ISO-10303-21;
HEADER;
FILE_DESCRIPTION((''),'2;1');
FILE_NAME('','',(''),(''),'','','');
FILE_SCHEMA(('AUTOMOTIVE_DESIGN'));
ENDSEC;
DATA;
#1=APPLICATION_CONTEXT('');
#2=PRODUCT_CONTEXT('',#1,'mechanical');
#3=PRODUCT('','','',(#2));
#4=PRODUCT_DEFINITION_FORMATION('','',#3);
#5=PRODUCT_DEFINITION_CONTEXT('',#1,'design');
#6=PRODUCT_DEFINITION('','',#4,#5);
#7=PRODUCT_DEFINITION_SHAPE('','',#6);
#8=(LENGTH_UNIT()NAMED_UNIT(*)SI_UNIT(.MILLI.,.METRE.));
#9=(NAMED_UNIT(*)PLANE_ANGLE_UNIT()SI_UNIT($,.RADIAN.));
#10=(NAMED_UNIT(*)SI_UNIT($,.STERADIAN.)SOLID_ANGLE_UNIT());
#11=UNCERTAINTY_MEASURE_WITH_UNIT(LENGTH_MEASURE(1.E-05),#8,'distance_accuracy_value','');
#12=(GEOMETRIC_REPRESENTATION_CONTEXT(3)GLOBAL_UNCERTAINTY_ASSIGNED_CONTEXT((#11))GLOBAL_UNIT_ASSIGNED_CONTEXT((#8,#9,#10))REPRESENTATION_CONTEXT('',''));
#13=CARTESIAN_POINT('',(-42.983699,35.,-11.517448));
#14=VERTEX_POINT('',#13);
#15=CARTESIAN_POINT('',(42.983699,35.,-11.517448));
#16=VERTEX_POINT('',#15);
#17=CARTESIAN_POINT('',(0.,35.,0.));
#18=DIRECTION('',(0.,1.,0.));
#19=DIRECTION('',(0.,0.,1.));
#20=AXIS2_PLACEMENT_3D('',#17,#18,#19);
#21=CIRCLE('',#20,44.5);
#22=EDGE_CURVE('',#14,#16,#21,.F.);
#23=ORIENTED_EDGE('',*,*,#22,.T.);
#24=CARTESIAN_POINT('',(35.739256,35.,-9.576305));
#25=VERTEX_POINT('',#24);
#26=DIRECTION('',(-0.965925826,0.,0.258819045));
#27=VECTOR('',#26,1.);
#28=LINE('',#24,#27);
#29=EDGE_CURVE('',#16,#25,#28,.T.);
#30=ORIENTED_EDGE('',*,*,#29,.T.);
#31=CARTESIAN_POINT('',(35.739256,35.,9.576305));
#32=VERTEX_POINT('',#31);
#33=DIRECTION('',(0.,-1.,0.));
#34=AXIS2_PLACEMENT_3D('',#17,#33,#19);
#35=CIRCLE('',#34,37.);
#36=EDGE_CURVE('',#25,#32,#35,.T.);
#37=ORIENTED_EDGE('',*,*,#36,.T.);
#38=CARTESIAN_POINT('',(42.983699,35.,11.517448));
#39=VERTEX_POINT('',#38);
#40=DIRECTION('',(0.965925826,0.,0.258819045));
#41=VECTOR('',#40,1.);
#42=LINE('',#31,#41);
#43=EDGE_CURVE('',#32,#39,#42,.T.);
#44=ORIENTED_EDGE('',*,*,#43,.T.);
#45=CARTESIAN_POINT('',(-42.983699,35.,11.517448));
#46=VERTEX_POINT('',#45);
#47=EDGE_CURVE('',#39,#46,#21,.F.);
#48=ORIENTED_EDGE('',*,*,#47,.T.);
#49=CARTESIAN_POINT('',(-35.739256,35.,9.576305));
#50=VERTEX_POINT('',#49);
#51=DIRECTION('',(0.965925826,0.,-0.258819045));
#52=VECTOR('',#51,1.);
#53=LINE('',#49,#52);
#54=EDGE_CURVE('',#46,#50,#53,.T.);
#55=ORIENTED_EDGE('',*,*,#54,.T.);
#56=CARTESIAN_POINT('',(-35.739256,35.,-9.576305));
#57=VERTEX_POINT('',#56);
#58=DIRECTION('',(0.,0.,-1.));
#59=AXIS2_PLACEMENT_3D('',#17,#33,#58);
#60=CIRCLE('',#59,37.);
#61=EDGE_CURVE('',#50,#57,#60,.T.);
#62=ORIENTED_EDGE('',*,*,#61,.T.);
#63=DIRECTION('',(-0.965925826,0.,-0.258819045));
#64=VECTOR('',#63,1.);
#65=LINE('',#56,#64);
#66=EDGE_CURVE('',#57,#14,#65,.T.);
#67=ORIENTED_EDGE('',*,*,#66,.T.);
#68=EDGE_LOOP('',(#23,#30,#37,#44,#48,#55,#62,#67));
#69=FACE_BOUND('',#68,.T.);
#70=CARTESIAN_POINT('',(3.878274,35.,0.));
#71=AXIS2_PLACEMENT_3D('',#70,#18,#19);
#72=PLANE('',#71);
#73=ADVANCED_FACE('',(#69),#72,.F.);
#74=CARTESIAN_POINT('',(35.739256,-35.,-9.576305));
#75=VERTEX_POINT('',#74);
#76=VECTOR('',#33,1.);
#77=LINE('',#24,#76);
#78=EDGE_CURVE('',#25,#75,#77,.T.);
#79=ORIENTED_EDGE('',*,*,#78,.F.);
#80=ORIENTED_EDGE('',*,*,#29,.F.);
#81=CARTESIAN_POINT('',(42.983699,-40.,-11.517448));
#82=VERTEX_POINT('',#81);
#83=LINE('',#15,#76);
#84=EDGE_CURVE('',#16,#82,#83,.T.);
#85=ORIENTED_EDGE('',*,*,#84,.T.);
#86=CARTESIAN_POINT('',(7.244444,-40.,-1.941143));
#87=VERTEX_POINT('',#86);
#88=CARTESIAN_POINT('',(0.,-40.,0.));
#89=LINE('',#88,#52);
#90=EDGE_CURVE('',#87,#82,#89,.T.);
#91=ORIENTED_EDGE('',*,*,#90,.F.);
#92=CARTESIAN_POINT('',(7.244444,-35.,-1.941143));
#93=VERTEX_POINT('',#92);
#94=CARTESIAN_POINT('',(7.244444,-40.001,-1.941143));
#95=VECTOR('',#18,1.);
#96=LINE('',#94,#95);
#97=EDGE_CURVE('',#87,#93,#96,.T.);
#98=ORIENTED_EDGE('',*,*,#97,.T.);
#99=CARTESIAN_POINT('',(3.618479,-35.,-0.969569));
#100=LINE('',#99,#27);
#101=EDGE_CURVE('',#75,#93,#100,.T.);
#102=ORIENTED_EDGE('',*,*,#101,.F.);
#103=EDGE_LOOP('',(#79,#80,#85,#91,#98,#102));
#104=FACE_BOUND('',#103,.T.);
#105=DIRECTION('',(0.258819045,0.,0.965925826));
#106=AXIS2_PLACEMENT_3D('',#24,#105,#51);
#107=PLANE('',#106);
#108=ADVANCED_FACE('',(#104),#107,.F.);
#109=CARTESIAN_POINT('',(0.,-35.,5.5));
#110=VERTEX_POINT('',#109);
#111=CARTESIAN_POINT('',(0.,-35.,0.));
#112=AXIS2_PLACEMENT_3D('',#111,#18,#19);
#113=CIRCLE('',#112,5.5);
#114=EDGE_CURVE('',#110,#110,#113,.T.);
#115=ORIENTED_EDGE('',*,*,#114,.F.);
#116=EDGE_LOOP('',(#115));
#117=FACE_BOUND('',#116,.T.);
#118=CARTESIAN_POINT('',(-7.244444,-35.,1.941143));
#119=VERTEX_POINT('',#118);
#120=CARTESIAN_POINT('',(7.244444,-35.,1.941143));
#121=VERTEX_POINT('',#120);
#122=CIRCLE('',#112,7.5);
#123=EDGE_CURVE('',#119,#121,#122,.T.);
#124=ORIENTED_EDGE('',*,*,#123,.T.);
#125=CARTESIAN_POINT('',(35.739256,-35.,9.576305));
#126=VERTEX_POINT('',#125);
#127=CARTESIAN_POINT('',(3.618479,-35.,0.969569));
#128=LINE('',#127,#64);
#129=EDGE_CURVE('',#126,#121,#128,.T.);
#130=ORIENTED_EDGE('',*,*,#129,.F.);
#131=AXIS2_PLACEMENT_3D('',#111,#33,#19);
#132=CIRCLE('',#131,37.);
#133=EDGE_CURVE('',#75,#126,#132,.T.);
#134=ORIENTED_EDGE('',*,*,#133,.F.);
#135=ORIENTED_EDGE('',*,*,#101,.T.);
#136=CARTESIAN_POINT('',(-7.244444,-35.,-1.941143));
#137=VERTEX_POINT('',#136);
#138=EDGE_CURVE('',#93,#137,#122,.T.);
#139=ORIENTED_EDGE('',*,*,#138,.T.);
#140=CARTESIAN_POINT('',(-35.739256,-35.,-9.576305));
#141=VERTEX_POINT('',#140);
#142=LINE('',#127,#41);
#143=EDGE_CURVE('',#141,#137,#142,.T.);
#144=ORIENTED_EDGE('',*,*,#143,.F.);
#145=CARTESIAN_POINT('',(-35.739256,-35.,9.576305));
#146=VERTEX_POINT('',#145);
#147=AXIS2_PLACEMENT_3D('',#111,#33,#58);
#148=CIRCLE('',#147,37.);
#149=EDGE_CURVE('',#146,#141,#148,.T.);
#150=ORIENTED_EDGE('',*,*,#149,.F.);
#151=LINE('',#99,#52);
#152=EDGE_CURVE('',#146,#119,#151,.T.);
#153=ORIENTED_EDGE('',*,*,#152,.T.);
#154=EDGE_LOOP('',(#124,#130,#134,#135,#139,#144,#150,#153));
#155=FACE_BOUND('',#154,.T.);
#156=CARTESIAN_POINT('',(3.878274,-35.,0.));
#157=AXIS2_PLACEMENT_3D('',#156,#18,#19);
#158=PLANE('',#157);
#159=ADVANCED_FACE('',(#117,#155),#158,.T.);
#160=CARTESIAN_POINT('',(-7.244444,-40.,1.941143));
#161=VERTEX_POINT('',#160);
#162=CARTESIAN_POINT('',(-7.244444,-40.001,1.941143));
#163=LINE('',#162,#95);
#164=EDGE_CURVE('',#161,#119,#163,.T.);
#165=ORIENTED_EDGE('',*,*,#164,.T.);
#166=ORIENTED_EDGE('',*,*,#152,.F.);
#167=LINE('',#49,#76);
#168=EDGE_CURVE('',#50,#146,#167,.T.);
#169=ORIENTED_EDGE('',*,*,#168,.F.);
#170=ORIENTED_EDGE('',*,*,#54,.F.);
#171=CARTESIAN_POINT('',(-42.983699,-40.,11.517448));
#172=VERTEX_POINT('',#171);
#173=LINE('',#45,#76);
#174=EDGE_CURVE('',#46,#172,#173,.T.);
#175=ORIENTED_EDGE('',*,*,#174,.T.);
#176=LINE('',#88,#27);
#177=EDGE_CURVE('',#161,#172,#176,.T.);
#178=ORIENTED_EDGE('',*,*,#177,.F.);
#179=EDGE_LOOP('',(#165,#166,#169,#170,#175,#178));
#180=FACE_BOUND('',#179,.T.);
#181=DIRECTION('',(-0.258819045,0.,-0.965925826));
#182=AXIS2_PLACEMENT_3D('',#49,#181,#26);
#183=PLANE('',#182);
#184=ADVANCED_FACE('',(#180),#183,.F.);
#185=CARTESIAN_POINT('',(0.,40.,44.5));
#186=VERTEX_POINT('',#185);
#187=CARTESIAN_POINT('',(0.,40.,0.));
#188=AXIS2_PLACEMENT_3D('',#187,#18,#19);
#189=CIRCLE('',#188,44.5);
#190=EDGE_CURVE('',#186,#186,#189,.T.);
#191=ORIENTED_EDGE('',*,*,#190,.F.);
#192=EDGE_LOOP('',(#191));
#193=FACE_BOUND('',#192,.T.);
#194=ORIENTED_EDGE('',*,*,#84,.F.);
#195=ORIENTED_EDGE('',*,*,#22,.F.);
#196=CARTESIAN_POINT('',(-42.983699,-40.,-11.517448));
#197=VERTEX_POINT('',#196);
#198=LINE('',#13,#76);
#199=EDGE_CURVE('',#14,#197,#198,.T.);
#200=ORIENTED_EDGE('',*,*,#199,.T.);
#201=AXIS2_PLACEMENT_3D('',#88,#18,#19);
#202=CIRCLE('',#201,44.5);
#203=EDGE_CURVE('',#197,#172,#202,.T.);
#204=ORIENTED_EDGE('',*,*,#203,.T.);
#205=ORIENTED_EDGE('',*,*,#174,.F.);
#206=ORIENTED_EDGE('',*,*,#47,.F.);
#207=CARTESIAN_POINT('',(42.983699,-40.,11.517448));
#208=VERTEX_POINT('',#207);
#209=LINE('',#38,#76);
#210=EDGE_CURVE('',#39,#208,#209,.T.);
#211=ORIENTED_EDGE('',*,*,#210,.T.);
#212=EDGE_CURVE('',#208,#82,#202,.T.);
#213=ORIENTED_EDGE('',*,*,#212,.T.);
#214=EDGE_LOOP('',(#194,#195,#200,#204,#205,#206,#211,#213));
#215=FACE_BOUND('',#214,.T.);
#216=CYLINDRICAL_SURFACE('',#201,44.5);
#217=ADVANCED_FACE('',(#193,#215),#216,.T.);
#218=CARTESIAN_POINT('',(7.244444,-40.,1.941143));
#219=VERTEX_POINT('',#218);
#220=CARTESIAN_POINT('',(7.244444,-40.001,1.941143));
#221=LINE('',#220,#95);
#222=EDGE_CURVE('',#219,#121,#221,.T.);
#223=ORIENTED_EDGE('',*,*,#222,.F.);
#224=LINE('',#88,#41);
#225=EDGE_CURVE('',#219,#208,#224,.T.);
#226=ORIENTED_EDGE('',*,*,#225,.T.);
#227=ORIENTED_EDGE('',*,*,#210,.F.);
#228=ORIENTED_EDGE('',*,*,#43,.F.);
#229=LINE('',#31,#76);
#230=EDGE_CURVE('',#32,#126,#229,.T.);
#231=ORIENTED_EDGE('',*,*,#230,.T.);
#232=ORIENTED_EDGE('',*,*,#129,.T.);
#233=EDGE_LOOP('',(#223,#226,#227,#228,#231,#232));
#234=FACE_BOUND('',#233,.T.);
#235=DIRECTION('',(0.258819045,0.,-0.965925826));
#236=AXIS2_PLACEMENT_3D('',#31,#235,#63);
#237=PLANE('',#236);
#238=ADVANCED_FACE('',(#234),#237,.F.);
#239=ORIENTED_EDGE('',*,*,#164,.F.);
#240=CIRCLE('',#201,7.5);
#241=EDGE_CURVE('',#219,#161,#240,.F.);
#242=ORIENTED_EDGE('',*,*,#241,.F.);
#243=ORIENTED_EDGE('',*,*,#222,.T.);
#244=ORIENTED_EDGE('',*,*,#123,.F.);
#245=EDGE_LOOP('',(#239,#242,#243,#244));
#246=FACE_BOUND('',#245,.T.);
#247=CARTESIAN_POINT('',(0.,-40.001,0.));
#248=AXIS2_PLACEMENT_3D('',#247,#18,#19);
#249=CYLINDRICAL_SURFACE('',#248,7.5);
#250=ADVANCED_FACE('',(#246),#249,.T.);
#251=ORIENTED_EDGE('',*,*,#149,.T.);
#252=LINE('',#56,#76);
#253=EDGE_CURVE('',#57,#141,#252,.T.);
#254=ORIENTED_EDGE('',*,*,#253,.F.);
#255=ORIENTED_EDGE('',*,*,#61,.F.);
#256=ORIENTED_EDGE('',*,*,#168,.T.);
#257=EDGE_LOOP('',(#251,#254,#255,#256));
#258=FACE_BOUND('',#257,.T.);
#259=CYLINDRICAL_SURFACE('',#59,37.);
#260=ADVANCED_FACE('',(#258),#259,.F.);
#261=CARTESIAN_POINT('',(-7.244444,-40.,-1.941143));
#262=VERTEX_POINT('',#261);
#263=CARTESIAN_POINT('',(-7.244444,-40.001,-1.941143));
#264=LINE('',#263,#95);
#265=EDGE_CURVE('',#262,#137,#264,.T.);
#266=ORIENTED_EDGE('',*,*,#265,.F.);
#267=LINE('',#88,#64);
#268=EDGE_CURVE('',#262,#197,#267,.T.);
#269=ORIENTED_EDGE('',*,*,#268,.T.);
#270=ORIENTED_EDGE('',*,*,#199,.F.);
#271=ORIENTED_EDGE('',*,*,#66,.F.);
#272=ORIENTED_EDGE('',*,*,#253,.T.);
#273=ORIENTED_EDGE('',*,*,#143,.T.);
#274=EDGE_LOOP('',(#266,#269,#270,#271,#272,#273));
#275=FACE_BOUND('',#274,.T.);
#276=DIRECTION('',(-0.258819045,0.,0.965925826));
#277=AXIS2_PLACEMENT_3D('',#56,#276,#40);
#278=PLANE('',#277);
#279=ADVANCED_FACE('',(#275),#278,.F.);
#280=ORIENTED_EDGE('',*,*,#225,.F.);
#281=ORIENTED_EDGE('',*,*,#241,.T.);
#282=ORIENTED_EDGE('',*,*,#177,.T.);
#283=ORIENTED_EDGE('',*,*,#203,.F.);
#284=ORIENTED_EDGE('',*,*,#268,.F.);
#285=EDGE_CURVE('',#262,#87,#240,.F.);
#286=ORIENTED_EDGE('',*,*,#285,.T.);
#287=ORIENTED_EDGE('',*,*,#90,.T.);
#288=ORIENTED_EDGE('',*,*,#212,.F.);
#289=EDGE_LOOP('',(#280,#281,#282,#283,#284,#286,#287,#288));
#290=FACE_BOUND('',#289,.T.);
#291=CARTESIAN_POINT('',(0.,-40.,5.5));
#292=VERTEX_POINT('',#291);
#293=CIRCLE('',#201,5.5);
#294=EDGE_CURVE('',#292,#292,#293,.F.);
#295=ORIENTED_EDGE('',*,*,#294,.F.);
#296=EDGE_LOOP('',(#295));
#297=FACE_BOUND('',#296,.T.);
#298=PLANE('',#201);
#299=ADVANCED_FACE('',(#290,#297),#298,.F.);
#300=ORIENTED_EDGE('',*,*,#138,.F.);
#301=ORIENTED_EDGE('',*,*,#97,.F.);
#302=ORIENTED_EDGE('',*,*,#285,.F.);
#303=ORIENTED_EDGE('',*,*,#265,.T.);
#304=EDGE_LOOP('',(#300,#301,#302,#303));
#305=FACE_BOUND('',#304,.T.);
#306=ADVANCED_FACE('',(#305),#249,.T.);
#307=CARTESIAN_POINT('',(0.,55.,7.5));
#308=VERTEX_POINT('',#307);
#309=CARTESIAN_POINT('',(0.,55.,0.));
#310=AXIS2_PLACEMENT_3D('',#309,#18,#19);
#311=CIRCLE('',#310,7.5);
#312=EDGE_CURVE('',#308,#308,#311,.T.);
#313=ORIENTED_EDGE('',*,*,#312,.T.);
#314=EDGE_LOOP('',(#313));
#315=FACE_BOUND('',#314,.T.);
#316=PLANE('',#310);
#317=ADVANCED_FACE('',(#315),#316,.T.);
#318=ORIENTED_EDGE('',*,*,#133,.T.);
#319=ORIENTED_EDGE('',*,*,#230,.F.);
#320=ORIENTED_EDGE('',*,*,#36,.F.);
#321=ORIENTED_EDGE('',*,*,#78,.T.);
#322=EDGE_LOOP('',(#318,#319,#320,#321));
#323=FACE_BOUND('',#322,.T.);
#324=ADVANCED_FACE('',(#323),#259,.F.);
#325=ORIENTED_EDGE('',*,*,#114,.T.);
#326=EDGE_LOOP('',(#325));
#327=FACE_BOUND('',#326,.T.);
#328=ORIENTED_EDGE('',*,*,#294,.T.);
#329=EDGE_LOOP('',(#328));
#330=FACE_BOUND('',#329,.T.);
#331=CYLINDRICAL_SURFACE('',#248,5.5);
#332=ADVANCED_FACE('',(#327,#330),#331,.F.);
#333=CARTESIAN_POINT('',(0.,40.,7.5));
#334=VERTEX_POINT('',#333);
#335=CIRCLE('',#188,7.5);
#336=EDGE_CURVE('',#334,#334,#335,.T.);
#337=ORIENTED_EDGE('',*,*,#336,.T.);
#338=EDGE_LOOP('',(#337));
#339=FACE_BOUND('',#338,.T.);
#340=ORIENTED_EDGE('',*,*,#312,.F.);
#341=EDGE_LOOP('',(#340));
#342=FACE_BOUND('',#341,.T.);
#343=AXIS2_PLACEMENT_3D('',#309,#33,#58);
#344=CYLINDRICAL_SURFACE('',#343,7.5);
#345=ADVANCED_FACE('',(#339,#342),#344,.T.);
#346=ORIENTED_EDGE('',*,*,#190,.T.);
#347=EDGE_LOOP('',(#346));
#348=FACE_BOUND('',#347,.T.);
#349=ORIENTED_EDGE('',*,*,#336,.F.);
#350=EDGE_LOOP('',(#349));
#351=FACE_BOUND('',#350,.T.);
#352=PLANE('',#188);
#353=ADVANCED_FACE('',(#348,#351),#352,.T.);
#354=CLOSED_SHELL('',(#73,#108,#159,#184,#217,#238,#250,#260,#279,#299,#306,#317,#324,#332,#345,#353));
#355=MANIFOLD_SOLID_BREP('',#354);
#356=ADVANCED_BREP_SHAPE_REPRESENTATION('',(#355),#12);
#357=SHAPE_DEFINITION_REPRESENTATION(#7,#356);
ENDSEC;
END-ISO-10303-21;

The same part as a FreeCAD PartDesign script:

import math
import FreeCAD as App
import Part
import Sketcher

V = App.Vector
Q = App.Units.Quantity

doc = App.newDocument("Part")
body = doc.addObject("PartDesign::Body", "Body")

# Sketch on XZ plane
sketch1 = body.newObject("Sketcher::SketchObject", "Sketch")
sketch1.AttachmentSupport = (doc.getObject("XZ_Plane"), [""])
sketch1.MapMode = "FlatFace"
sketch1.addGeometry(Part.Circle(V(0, 0, 0), V(0, 0, 1), 44), False)
sketch1.addConstraint(Sketcher.Constraint("Coincident", 0, 3, -1, 1))
sketch1.addConstraint(Sketcher.Constraint("Diameter", 0, 89.0))
pad1 = body.newObject("PartDesign::Pad", "Pad")
pad1.Profile = sketch1
pad1.Type = "TwoLengths"
pad1.Length = 40
pad1.Length2 = 40
pad1.Reversed = True

# Sketch on XZ plane
sketch2 = body.newObject("Sketcher::SketchObject", "Sketch001")
sketch2.AttachmentSupport = (doc.getObject("XZ_Plane"), [""])
sketch2.MapMode = "FlatFace"
sketch2.addGeometry(Part.LineSegment(V(-60, -60, 0), V(-60, 60, 0)), False)
sketch2.addGeometry(Part.LineSegment(V(-60, 60, 0), V(60, 60, 0)), False)
sketch2.addGeometry(Part.LineSegment(V(60, 60, 0), V(60, -60, 0)), False)
sketch2.addGeometry(Part.LineSegment(V(60, -60, 0), V(-60, -60, 0)), False)
sketch2.addGeometry(Part.ArcOfCircle(Part.Circle(V(0, 0, 0), V(0, 0, 1), 37), math.radians(-15), math.radians(15)), False)
sketch2.addGeometry(Part.LineSegment(V(36, -10, 0), V(43, -12, 0)), False)
sketch2.addGeometry(Part.ArcOfCircle(Part.Circle(V(0, 0, 0), V(0, 0, 1), 44), math.radians(-15), math.radians(15)), False)
sketch2.addGeometry(Part.LineSegment(V(43, 12, 0), V(36, 10, 0)), False)
sketch2.addGeometry(Part.ArcOfCircle(Part.Circle(V(0, 0, 0), V(0, 0, 1), 37), math.radians(165), math.radians(195)), False)
sketch2.addGeometry(Part.LineSegment(V(-36, 10, 0), V(-43, 12, 0)), False)
sketch2.addGeometry(Part.ArcOfCircle(Part.Circle(V(0, 0, 0), V(0, 0, 1), 44), math.radians(165), math.radians(195)), False)
sketch2.addGeometry(Part.LineSegment(V(-43, -12, 0), V(-36, -10, 0)), False)
sketch2.addConstraint(Sketcher.Constraint("Coincident", 0, 2, 1, 1))
sketch2.addConstraint(Sketcher.Constraint("Coincident", 1, 2, 2, 1))
sketch2.addConstraint(Sketcher.Constraint("Coincident", 2, 2, 3, 1))
sketch2.addConstraint(Sketcher.Constraint("Coincident", 3, 2, 0, 1))
sketch2.addConstraint(Sketcher.Constraint("Coincident", 4, 1, 5, 1))
sketch2.addConstraint(Sketcher.Constraint("Coincident", 5, 2, 6, 1))
sketch2.addConstraint(Sketcher.Constraint("Coincident", 6, 2, 7, 1))
sketch2.addConstraint(Sketcher.Constraint("Coincident", 7, 2, 4, 2))
sketch2.addConstraint(Sketcher.Constraint("Coincident", 8, 1, 9, 1))
sketch2.addConstraint(Sketcher.Constraint("Coincident", 9, 2, 10, 1))
sketch2.addConstraint(Sketcher.Constraint("Coincident", 10, 2, 11, 1))
sketch2.addConstraint(Sketcher.Constraint("Coincident", 11, 2, 8, 2))
sketch2.addConstraint(Sketcher.Constraint("Vertical", 0))
sketch2.addConstraint(Sketcher.Constraint("Horizontal", 1))
sketch2.addConstraint(Sketcher.Constraint("Vertical", 2))
sketch2.addConstraint(Sketcher.Constraint("Horizontal", 3))
sketch2.addConstraint(Sketcher.Constraint("Coincident", 6, 3, -1, 1))
sketch2.addConstraint(Sketcher.Constraint("Coincident", 10, 3, -1, 1))
sketch2.addConstraint(Sketcher.Constraint("Equal", 4, 8))
sketch2.addConstraint(Sketcher.Constraint("Equal", 6, 10))
sketch2.addConstraint(Sketcher.Constraint("Symmetric", 4, 3, 8, 3, -1, 1))
sketch2.addConstraint(Sketcher.Constraint("Symmetric", 0, 2, 2, 2, -1, 1))
sketch2.addConstraint(Sketcher.Constraint("Symmetric", 7, 2, 8, 1, -2))
sketch2.addConstraint(Sketcher.Constraint("Parallel", 5, 9))
sketch2.addConstraint(Sketcher.Constraint("Parallel", 7, 11))
sketch2.addConstraint(Sketcher.Constraint("Horizontal", 6, 2, 9, 2))
sketch2.addConstraint(Sketcher.Constraint("Horizontal", 5, 2, 10, 2))
sketch2.addConstraint(Sketcher.Constraint("Vertical", 5, 2, 6, 2))
sketch2.addConstraint(Sketcher.Constraint("Equal", 3, 0))
sketch2.addConstraint(Sketcher.Constraint("Angle", 5, Q("-15.000003 deg")))
sketch2.addConstraint(Sketcher.Constraint("Distance", 5, 7.499999))
sketch2.addConstraint(Sketcher.Constraint("DistanceX", 1, 1, 1, 2, 120.828))
sketch2.addConstraint(Sketcher.Constraint("Radius", 4, 37.000015))
sketch2.addConstraint(Sketcher.Constraint("Radius", 6, 44.499996))
sketch2.addConstraint(Sketcher.Constraint("DistanceX", -1, 1, 5, 2, 42.983699))
pocket1 = body.newObject("PartDesign::Pocket", "Pocket")
pocket1.Profile = sketch2
pocket1.Type = "TwoLengths"
pocket1.Length = 35
pocket1.Length2 = 35

# Sketch on XZ plane
sketch3 = body.newObject("Sketcher::SketchObject", "Sketch002")
sketch3.AttachmentSupport = (doc.getObject("XZ_Plane"), [""])
sketch3.MapMode = "FlatFace"
sketch3.AttachmentOffset = App.Placement(V(0, 0, 35), App.Rotation())
sketch3.addGeometry(Part.Circle(V(0, 0, 0), V(0, 0, 1), 6), False)
sketch3.addConstraint(Sketcher.Constraint("Coincident", 0, 3, -1, 1))
sketch3.addConstraint(Sketcher.Constraint("Diameter", 0, 11.0))
pocket2 = body.newObject("PartDesign::Pocket", "Pocket001")
pocket2.Profile = sketch3
pocket2.Type = "UpToFirst"
pocket2.Reversed = True

# Sketch on XZ plane
sketch4 = body.newObject("Sketcher::SketchObject", "Sketch003")
sketch4.AttachmentSupport = (doc.getObject("XZ_Plane"), [""])
sketch4.MapMode = "FlatFace"
sketch4.AttachmentOffset = App.Placement(V(0, 0, 35), App.Rotation())
sketch4.addGeometry(Part.LineSegment(V(7, -2, 0), V(43, -12, 0)), False)
sketch4.addGeometry(Part.ArcOfCircle(Part.Circle(V(0, 0, 0), V(0, 0, 1), 44), math.radians(-165), math.radians(-15)), False)
sketch4.addGeometry(Part.LineSegment(V(-43, -12, 0), V(-7, -2, 0)), False)
sketch4.addGeometry(Part.ArcOfCircle(Part.Circle(V(0, 0, 0), V(0, 0, 1), 8), math.radians(-165), math.radians(-15)), False)
sketch4.addConstraint(Sketcher.Constraint("Coincident", 0, 2, 1, 2))
sketch4.addConstraint(Sketcher.Constraint("Coincident", 1, 1, 2, 1))
sketch4.addConstraint(Sketcher.Constraint("Coincident", 2, 2, 3, 1))
sketch4.addConstraint(Sketcher.Constraint("Coincident", 3, 2, 0, 1))
sketch4.addConstraint(Sketcher.Constraint("Coincident", 1, 3, -1, 1))
sketch4.addConstraint(Sketcher.Constraint("Coincident", 3, 3, -1, 1))
sketch4.addConstraint(Sketcher.Constraint("Horizontal", 0, 2, 1, 1))
sketch4.addConstraint(Sketcher.Constraint("Horizontal", 2, 2, 3, 2))
sketch4.addConstraint(Sketcher.Constraint("Radius", 1, 44.5))
sketch4.addConstraint(Sketcher.Constraint("Radius", 3, 7.5))
sketch4.addConstraint(Sketcher.Constraint("Angle", 0, Q("-15.000001 deg")))
sketch4.addConstraint(Sketcher.Constraint("DistanceX", -1, 1, 0, 2, 42.983699))
pocket3 = body.newObject("PartDesign::Pocket", "Pocket002")
pocket3.Profile = sketch4
pocket3.Type = "UpToFirst"
pocket3.Reversed = True

# Sketch on XZ plane
sketch5 = body.newObject("Sketcher::SketchObject", "Sketch004")
sketch5.AttachmentSupport = (doc.getObject("XZ_Plane"), [""])
sketch5.MapMode = "FlatFace"
sketch5.AttachmentOffset = App.Placement(V(0, 0, 35), App.Rotation())
sketch5.addGeometry(Part.LineSegment(V(43, 12, 0), V(7, 2, 0)), False)
sketch5.addGeometry(Part.ArcOfCircle(Part.Circle(V(0, 0, 0), V(0, 0, 1), 8), math.radians(15), math.radians(165)), False)
sketch5.addGeometry(Part.LineSegment(V(-7, 2, 0), V(-43, 12, 0)), False)
sketch5.addGeometry(Part.ArcOfCircle(Part.Circle(V(0, 0, 0), V(0, 0, 1), 44), math.radians(15), math.radians(165)), False)
sketch5.addConstraint(Sketcher.Constraint("Coincident", 0, 2, 1, 1))
sketch5.addConstraint(Sketcher.Constraint("Coincident", 1, 2, 2, 1))
sketch5.addConstraint(Sketcher.Constraint("Coincident", 2, 2, 3, 2))
sketch5.addConstraint(Sketcher.Constraint("Coincident", 3, 1, 0, 1))
sketch5.addConstraint(Sketcher.Constraint("Coincident", 1, 3, -1, 1))
sketch5.addConstraint(Sketcher.Constraint("Coincident", 3, 3, -1, 1))
sketch5.addConstraint(Sketcher.Constraint("Horizontal", 0, 2, 1, 2))
sketch5.addConstraint(Sketcher.Constraint("Horizontal", 2, 2, 3, 1))
sketch5.addConstraint(Sketcher.Constraint("Radius", 1, 7.5))
sketch5.addConstraint(Sketcher.Constraint("Radius", 3, 44.5))
sketch5.addConstraint(Sketcher.Constraint("Angle", 0, Q("-164.999999 deg")))
sketch5.addConstraint(Sketcher.Constraint("DistanceX", 2, 2, -1, 1, 42.983699))
pocket4 = body.newObject("PartDesign::Pocket", "Pocket003")
pocket4.Profile = sketch5
pocket4.Type = "UpToFirst"
pocket4.Reversed = True

# Sketch on XZ plane
sketch6 = body.newObject("Sketcher::SketchObject", "Sketch005")
sketch6.AttachmentSupport = (doc.getObject("XZ_Plane"), [""])
sketch6.MapMode = "FlatFace"
sketch6.AttachmentOffset = App.Placement(V(0, 0, -55), App.Rotation())
sketch6.addGeometry(Part.Circle(V(0, 0, 0), V(0, 0, 1), 8), False)
sketch6.addConstraint(Sketcher.Constraint("Coincident", 0, 3, -1, 1))
sketch6.addConstraint(Sketcher.Constraint("Diameter", 0, 15.0))
pad2 = body.newObject("PartDesign::Pad", "Pad001")
pad2.Profile = sketch6
pad2.Length = 15

doc.recompute()
